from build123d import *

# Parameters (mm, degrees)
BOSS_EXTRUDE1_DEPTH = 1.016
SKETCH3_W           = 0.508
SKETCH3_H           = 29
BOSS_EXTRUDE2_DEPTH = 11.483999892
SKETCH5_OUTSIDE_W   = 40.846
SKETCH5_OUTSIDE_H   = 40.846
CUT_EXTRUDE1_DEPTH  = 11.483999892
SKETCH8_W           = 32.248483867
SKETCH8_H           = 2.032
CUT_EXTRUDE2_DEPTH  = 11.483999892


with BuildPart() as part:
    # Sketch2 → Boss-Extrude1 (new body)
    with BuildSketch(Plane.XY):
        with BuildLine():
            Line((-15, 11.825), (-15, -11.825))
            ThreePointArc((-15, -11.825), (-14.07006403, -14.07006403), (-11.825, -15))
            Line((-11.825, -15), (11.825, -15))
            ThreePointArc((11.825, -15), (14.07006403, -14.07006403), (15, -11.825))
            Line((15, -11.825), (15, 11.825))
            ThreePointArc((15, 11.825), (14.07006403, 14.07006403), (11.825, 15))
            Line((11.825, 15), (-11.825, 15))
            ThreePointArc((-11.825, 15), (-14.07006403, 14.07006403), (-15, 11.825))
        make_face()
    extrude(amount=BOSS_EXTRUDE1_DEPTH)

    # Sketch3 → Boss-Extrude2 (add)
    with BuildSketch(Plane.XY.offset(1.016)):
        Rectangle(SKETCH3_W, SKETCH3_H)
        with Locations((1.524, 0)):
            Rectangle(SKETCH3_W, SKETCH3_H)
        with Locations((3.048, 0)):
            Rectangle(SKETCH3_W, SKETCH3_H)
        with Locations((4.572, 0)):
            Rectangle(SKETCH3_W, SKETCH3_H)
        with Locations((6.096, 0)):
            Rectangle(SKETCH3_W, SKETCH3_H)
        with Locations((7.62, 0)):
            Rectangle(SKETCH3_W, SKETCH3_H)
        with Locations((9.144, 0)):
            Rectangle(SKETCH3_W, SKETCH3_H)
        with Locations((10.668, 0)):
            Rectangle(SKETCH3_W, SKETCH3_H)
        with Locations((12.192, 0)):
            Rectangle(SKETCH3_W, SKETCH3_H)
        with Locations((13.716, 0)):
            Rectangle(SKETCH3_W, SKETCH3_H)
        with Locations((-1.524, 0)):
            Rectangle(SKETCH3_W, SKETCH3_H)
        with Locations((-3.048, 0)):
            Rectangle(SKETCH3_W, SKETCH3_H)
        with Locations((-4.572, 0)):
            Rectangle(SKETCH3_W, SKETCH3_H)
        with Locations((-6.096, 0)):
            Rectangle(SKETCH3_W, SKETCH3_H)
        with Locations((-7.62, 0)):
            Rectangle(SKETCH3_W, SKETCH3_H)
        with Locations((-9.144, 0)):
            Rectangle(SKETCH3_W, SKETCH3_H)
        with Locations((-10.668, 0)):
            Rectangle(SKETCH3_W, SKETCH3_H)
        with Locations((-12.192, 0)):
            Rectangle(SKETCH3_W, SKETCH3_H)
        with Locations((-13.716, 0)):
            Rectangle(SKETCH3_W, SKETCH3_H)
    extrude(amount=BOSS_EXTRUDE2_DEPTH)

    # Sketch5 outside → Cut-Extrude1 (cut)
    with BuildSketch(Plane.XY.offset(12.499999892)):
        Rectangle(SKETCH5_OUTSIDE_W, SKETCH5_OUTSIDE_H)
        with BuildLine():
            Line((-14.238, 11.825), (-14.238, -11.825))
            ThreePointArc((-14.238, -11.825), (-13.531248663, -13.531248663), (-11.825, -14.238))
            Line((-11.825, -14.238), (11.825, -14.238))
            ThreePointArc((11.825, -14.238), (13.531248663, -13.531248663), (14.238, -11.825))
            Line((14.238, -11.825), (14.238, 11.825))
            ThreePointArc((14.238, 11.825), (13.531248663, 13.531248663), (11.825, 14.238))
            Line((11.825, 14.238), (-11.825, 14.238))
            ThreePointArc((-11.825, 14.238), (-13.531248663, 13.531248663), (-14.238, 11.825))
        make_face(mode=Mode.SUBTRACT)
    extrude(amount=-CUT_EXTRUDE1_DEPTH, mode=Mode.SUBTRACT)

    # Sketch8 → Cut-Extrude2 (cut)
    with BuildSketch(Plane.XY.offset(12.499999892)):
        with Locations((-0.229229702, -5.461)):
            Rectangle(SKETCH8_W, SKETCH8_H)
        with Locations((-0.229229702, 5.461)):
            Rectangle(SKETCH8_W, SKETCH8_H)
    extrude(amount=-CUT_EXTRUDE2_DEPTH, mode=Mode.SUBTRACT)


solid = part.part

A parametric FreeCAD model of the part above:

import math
import FreeCAD as App
import Part
import Sketcher

V = App.Vector
Q = App.Units.Quantity


def add_polygon(sketch, points):
    """Adds a closed chain of lines whose ends are joined by coincident constraints."""
    first, n = sketch.GeometryCount, len(points)
    for a, b in zip(points, points[1:] + points[:1]):
        sketch.addGeometry(Part.LineSegment(App.Vector(*a, 0), App.Vector(*b, 0)), False)
    for i in range(n):
        sketch.addConstraint(Sketcher.Constraint("Coincident", first + i, 2, first + (i + 1) % n, 1))

doc = App.newDocument("Part")
body = doc.addObject("PartDesign::Body", "Body")

# Sketch on XY plane
sketch1 = body.newObject("Sketcher::SketchObject", "Sketch")
sketch1.AttachmentSupport = (doc.getObject("XY_Plane"), [""])
sketch1.MapMode = "FlatFace"
sketch1.addGeometry([
    Part.LineSegment(V(-15, 11.8, 0), V(-15, -11.8, 0)),  # 0
    Part.ArcOfCircle(Part.Circle(V(-11.8, -11.8, 0), V(0, 0, 1), 3.2), math.radians(-180), math.radians(-90)),  # 1
    Part.LineSegment(V(-11.8, -15, 0), V(11.8, -15, 0)),  # 2
    Part.ArcOfCircle(Part.Circle(V(11.8, -11.8, 0), V(0, 0, 1), 3.2), math.radians(-90), math.radians(0)),  # 3
    Part.LineSegment(V(15, -11.8, 0), V(15, 11.8, 0)),  # 4
    Part.ArcOfCircle(Part.Circle(V(11.8, 11.8, 0), V(0, 0, 1), 3.2), math.radians(0), math.radians(90)),  # 5
    Part.LineSegment(V(11.8, 15, 0), V(-11.8, 15, 0)),  # 6
    Part.ArcOfCircle(Part.Circle(V(-11.8, 11.8, 0), V(0, 0, 1), 3.2), math.radians(90), math.radians(180)),  # 7
], False)
sketch1.addConstraint([
    Sketcher.Constraint("Tangent", 0, 2, 1, 1),
    Sketcher.Constraint("Tangent", 1, 2, 2, 1),
    Sketcher.Constraint("Tangent", 2, 2, 3, 1),
    Sketcher.Constraint("Tangent", 3, 2, 4, 1),
    Sketcher.Constraint("Tangent", 4, 2, 5, 1),
    Sketcher.Constraint("Tangent", 5, 2, 6, 1),
    Sketcher.Constraint("Tangent", 6, 2, 7, 1),
    Sketcher.Constraint("Tangent", 7, 2, 0, 1),
    Sketcher.Constraint("Vertical", 0),
    Sketcher.Constraint("Horizontal", 2),
    Sketcher.Constraint("Vertical", 4),
    Sketcher.Constraint("Horizontal", 6),
    Sketcher.Constraint("Equal", 1, 3),
    Sketcher.Constraint("Equal", 3, 5),
    Sketcher.Constraint("Equal", 5, 7),
    Sketcher.Constraint("Symmetric", 1, 3, 5, 3, -1, 1),
    Sketcher.Constraint("Equal", 6, 0),
    Sketcher.Constraint("Radius", 1, Q("0.125 in")),
    Sketcher.Constraint("DistanceX", 2, 1, 2, 2, 23.65),
])
pad1 = body.newObject("PartDesign::Pad", "Pad")
pad1.Profile = sketch1
pad1.Length = Q("0.04 in")

# Sketch on XY plane
sketch2 = body.newObject("Sketcher::SketchObject", "Sketch001")
sketch2.AttachmentSupport = (doc.getObject("XY_Plane"), [""])
sketch2.MapMode = "FlatFace"
sketch2.AttachmentOffset = App.Placement(V(0, 0, 0.04 * 25.4), App.Rotation())
add_polygon(sketch2, [(-0.3, 14.5), (-0.3, -14.5), (0.3, -14.5), (0.3, 14.5)])  # lines 0-3
add_polygon(sketch2, [(1.3, 14.5), (1.3, -14.5), (1.8, -14.5), (1.8, 14.5)])  # lines 4-7
add_polygon(sketch2, [(2.8, 14.5), (2.8, -14.5), (3.3, -14.5), (3.3, 14.5)])  # lines 8-11
add_polygon(sketch2, [(4.3, 14.5), (4.3, -14.5), (4.8, -14.5), (4.8, 14.5)])  # lines 12-15
add_polygon(sketch2, [(5.8, 14.5), (5.8, -14.5), (6.3, -14.5), (6.3, 14.5)])  # lines 16-19
add_polygon(sketch2, [(7.4, 14.5), (7.4, -14.5), (7.9, -14.5), (7.9, 14.5)])  # lines 20-23
add_polygon(sketch2, [(8.9, 14.5), (8.9, -14.5), (9.4, -14.5), (9.4, 14.5)])  # lines 24-27
add_polygon(sketch2, [(10.4, 14.5), (10.4, -14.5), (10.9, -14.5), (10.9, 14.5)])  # lines 28-31
add_polygon(sketch2, [(11.9, 14.5), (11.9, -14.5), (12.4, -14.5), (12.4, 14.5)])  # lines 32-35
add_polygon(sketch2, [(13.5, 14.5), (13.5, -14.5), (14, -14.5), (14, 14.5)])  # lines 36-39
add_polygon(sketch2, [(-1.8, 14.5), (-1.8, -14.5), (-1.3, -14.5), (-1.3, 14.5)])  # lines 40-43
add_polygon(sketch2, [(-3.3, 14.5), (-3.3, -14.5), (-2.8, -14.5), (-2.8, 14.5)])  # lines 44-47
add_polygon(sketch2, [(-4.8, 14.5), (-4.8, -14.5), (-4.3, -14.5), (-4.3, 14.5)])  # lines 48-51
add_polygon(sketch2, [(-6.3, 14.5), (-6.3, -14.5), (-5.8, -14.5), (-5.8, 14.5)])  # lines 52-55
add_polygon(sketch2, [(-7.9, 14.5), (-7.9, -14.5), (-7.4, -14.5), (-7.4, 14.5)])  # lines 56-59
add_polygon(sketch2, [(-9.4, 14.5), (-9.4, -14.5), (-8.9, -14.5), (-8.9, 14.5)])  # lines 60-63
add_polygon(sketch2, [(-10.9, 14.5), (-10.9, -14.5), (-10.4, -14.5), (-10.4, 14.5)])  # lines 64-67
add_polygon(sketch2, [(-12.4, 14.5), (-12.4, -14.5), (-11.9, -14.5), (-11.9, 14.5)])  # lines 68-71
add_polygon(sketch2, [(-14, 14.5), (-14, -14.5), (-13.5, -14.5), (-13.5, 14.5)])  # lines 72-75
sketch2.addConstraint([
    Sketcher.Constraint("Vertical", 0),
    Sketcher.Constraint("Horizontal", 1),
    Sketcher.Constraint("Vertical", 2),
    Sketcher.Constraint("Horizontal", 3),
    Sketcher.Constraint("Vertical", 4),
    Sketcher.Constraint("Horizontal", 5),
    Sketcher.Constraint("Vertical", 6),
    Sketcher.Constraint("Horizontal", 7),
    Sketcher.Constraint("Vertical", 8),
    Sketcher.Constraint("Horizontal", 9),
    Sketcher.Constraint("Vertical", 10),
    Sketcher.Constraint("Horizontal", 11),
    Sketcher.Constraint("Vertical", 12),
    Sketcher.Constraint("Horizontal", 13),
    Sketcher.Constraint("Vertical", 14),
    Sketcher.Constraint("Horizontal", 15),
    Sketcher.Constraint("Vertical", 16),
    Sketcher.Constraint("Horizontal", 17),
    Sketcher.Constraint("Vertical", 18),
    Sketcher.Constraint("Horizontal", 19),
    Sketcher.Constraint("Vertical", 20),
    Sketcher.Constraint("Horizontal", 21),
    Sketcher.Constraint("Vertical", 22),
    Sketcher.Constraint("Horizontal", 23),
    Sketcher.Constraint("Vertical", 24),
    Sketcher.Constraint("Horizontal", 25),
    Sketcher.Constraint("Vertical", 26),
    Sketcher.Constraint("Horizontal", 27),
    Sketcher.Constraint("Vertical", 28),
    Sketcher.Constraint("Horizontal", 29),
    Sketcher.Constraint("Vertical", 30),
    Sketcher.Constraint("Horizontal", 31),
    Sketcher.Constraint("Vertical", 32),
    Sketcher.Constraint("Horizontal", 33),
    Sketcher.Constraint("Vertical", 34),
    Sketcher.Constraint("Horizontal", 35),
    Sketcher.Constraint("Vertical", 36),
    Sketcher.Constraint("Horizontal", 37),
    Sketcher.Constraint("Vertical", 38),
    Sketcher.Constraint("Horizontal", 39),
    Sketcher.Constraint("Vertical", 40),
    Sketcher.Constraint("Horizontal", 41),
    Sketcher.Constraint("Vertical", 42),
    Sketcher.Constraint("Horizontal", 43),
    Sketcher.Constraint("Vertical", 44),
    Sketcher.Constraint("Horizontal", 45),
    Sketcher.Constraint("Vertical", 46),
    Sketcher.Constraint("Horizontal", 47),
    Sketcher.Constraint("Vertical", 48),
    Sketcher.Constraint("Horizontal", 49),
    Sketcher.Constraint("Vertical", 50),
    Sketcher.Constraint("Horizontal", 51),
    Sketcher.Constraint("Vertical", 52),
    Sketcher.Constraint("Horizontal", 53),
    Sketcher.Constraint("Vertical", 54),
    Sketcher.Constraint("Horizontal", 55),
    Sketcher.Constraint("Vertical", 56),
    Sketcher.Constraint("Horizontal", 57),
    Sketcher.Constraint("Vertical", 58),
    Sketcher.Constraint("Horizontal", 59),
    Sketcher.Constraint("Vertical", 60),
    Sketcher.Constraint("Horizontal", 61),
    Sketcher.Constraint("Vertical", 62),
    Sketcher.Constraint("Horizontal", 63),
    Sketcher.Constraint("Vertical", 64),
    Sketcher.Constraint("Horizontal", 65),
    Sketcher.Constraint("Vertical", 66),
    Sketcher.Constraint("Horizontal", 67),
    Sketcher.Constraint("Vertical", 68),
    Sketcher.Constraint("Horizontal", 69),
    Sketcher.Constraint("Vertical", 70),
    Sketcher.Constraint("Horizontal", 71),
    Sketcher.Constraint("Vertical", 72),
    Sketcher.Constraint("Horizontal", 73),
    Sketcher.Constraint("Vertical", 74),
    Sketcher.Constraint("Horizontal", 75),
    Sketcher.Constraint("Symmetric", 0, 2, 2, 2, -1, 1),
    Sketcher.Constraint("Symmetric", 6, 2, 40, 2, -1, 1),
    Sketcher.Constraint("Symmetric", 4, 2, 42, 2, -1, 1),
    Sketcher.Constraint("Symmetric", 10, 2, 44, 2, -1, 1),
    Sketcher.Constraint("Symmetric", 8, 2, 46, 2, -1, 1),
    Sketcher.Constraint("Symmetric", 14, 2, 48, 2, -1, 1),
    Sketcher.Constraint("Symmetric", 12, 2, 50, 2, -1, 1),
    Sketcher.Constraint("Symmetric", 18, 2, 52, 2, -1, 1),
    Sketcher.Constraint("Symmetric", 16, 2, 54, 2, -1, 1),
    Sketcher.Constraint("Symmetric", 22, 2, 56, 2, -1, 1),
    Sketcher.Constraint("Symmetric", 20, 2, 58, 2, -1, 1),
    Sketcher.Constraint("Symmetric", 26, 2, 60, 2, -1, 1),
    Sketcher.Constraint("Symmetric", 24, 2, 62, 2, -1, 1),
    Sketcher.Constraint("Symmetric", 30, 2, 64, 2, -1, 1),
    Sketcher.Constraint("Symmetric", 28, 2, 66, 2, -1, 1),
    Sketcher.Constraint("Symmetric", 34, 2, 68, 2, -1, 1),
    Sketcher.Constraint("Symmetric", 32, 2, 70, 2, -1, 1),
    Sketcher.Constraint("Symmetric", 38, 2, 72, 2, -1, 1),
    Sketcher.Constraint("Symmetric", 36, 2, 74, 2, -1, 1),
    Sketcher.Constraint("Horizontal", 1, 2, 4, 2),
    Sketcher.Constraint("Horizontal", 3, 2, 6, 2),
    Sketcher.Constraint("Horizontal", 5, 2, 8, 2),
    Sketcher.Constraint("Horizontal", 7, 2, 10, 2),
    Sketcher.Constraint("Horizontal", 9, 2, 12, 2),
    Sketcher.Constraint("Horizontal", 11, 2, 14, 2),
    Sketcher.Constraint("Horizontal", 13, 2, 16, 2),
    Sketcher.Constraint("Horizontal", 15, 2, 18, 2),
    Sketcher.Constraint("Horizontal", 17, 2, 20, 2),
    Sketcher.Constraint("Horizontal", 19, 2, 22, 2),
    Sketcher.Constraint("Horizontal", 21, 2, 24, 2),
    Sketcher.Constraint("Horizontal", 23, 2, 26, 2),
    Sketcher.Constraint("Horizontal", 25, 2, 28, 2),
    Sketcher.Constraint("Horizontal", 27, 2, 30, 2),
    Sketcher.Constraint("Horizontal", 29, 2, 32, 2),
    Sketcher.Constraint("Horizontal", 31, 2, 34, 2),
    Sketcher.Constraint("Horizontal", 33, 2, 36, 2),
    Sketcher.Constraint("Horizontal", 35, 2, 38, 2),
    Sketcher.Constraint("Equal", 3, 5),
    Sketcher.Constraint("Equal", 7, 9),
    Sketcher.Constraint("Equal", 11, 13),
    Sketcher.Constraint("Equal", 15, 17),
    Sketcher.Constraint("Equal", 19, 21),
    Sketcher.Constraint("Equal", 23, 25),
    Sketcher.Constraint("Equal", 27, 29),
    Sketcher.Constraint("Equal", 31, 33),
    Sketcher.Constraint("Equal", 35, 37),
    Sketcher.Constraint("DistanceX", 1, 1, 1, 2, Q("0.02 in")),
    Sketcher.Constraint("DistanceX", -1, 1, 4, 2, Q("0.05 in")),
    Sketcher.Constraint("DistanceX", -1, 1, 8, 2, Q("0.11 in")),
    Sketcher.Constraint("DistanceX", -1, 1, 12, 2, Q("0.17 in")),
    Sketcher.Constraint("DistanceX", -1, 1, 16, 2, Q("0.23 in")),
    Sketcher.Constraint("DistanceX", -1, 1, 20, 2, Q("0.29 in")),
    Sketcher.Constraint("DistanceX", -1, 1, 24, 2, Q("0.35 in")),
    Sketcher.Constraint("DistanceX", -1, 1, 28, 2, Q("0.41 in")),
    Sketcher.Constraint("DistanceX", -1, 1, 32, 2, Q("0.47 in")),
    Sketcher.Constraint("DistanceX", -1, 1, 36, 2, Q("0.53 in")),
    Sketcher.Constraint("DistanceY", 0, 2, 0, 1, 29.0),
])
pad2 = body.newObject("PartDesign::Pad", "Pad001")
pad2.Profile = sketch2
pad2.Length = 11.484

# Sketch on XY plane
sketch3 = body.newObject("Sketcher::SketchObject", "Sketch002")
sketch3.AttachmentSupport = (doc.getObject("XY_Plane"), [""])
sketch3.MapMode = "FlatFace"
sketch3.AttachmentOffset = App.Placement(V(0, 0, 12.5), App.Rotation())
add_polygon(sketch3, [(-20.4, 20.4), (-20.4, -20.4), (20.4, -20.4), (20.4, 20.4)])  # lines 0-3
sketch3.addGeometry(Part.LineSegment(V(-14.2, -11.8, 0), V(-14.2, 11.8, 0)), False)  # 4
sketch3.addGeometry(Part.ArcOfCircle(Part.Circle(V(-11.8, 11.8, 0), V(0, 0, 1), 2.4), math.radians(90), math.radians(180)), False)  # 5
sketch3.addGeometry(Part.LineSegment(V(-11.8, 14.2, 0), V(11.8, 14.2, 0)), False)  # 6
sketch3.addGeometry(Part.ArcOfCircle(Part.Circle(V(11.8, 11.8, 0), V(0, 0, 1), 2.4), math.radians(0), math.radians(90)), False)  # 7
sketch3.addGeometry(Part.LineSegment(V(14.2, 11.8, 0), V(14.2, -11.8, 0)), False)  # 8
sketch3.addGeometry(Part.ArcOfCircle(Part.Circle(V(11.8, -11.8, 0), V(0, 0, 1), 2.4), math.radians(-90), math.radians(0)), False)  # 9
sketch3.addGeometry(Part.LineSegment(V(11.8, -14.2, 0), V(-11.8, -14.2, 0)), False)  # 10
sketch3.addGeometry(Part.ArcOfCircle(Part.Circle(V(-11.8, -11.8, 0), V(0, 0, 1), 2.4), math.radians(180), math.radians(270)), False)  # 11
sketch3.addConstraint([
    Sketcher.Constraint("Tangent", 4, 2, 5, 2),
    Sketcher.Constraint("Tangent", 5, 1, 6, 1),
    Sketcher.Constraint("Tangent", 6, 2, 7, 2),
    Sketcher.Constraint("Tangent", 7, 1, 8, 1),
    Sketcher.Constraint("Tangent", 8, 2, 9, 2),
    Sketcher.Constraint("Tangent", 9, 1, 10, 1),
    Sketcher.Constraint("Tangent", 10, 2, 11, 2),
    Sketcher.Constraint("Tangent", 11, 1, 4, 1),
    Sketcher.Constraint("Vertical", 0),
    Sketcher.Constraint("Horizontal", 1),
    Sketcher.Constraint("Vertical", 2),
    Sketcher.Constraint("Horizontal", 3),
    Sketcher.Constraint("Vertical", 4),
    Sketcher.Constraint("Horizontal", 6),
    Sketcher.Constraint("Vertical", 8),
    Sketcher.Constraint("Horizontal", 10),
    Sketcher.Constraint("Equal", 5, 7),
    Sketcher.Constraint("Equal", 7, 9),
    Sketcher.Constraint("Equal", 9, 11),
    Sketcher.Constraint("Symmetric", 5, 3, 9, 3, -1, 1),
    Sketcher.Constraint("Symmetric", 0, 2, 2, 2, -1, 1),
    Sketcher.Constraint("Equal", 3, 0),
    Sketcher.Constraint("Equal", 10, 4),
    Sketcher.Constraint("Radius", 5, Q("0.095 in")),
    Sketcher.Constraint("DistanceX", 1, 1, 1, 2, 40.846),
    Sketcher.Constraint("DistanceX", 6, 1, 6, 2, 23.65),
])
pocket1 = body.newObject("PartDesign::Pocket", "Pocket")
pocket1.Profile = sketch3
pocket1.Length = 11.484

# Sketch on XY plane
sketch4 = body.newObject("Sketcher::SketchObject", "Sketch003")
sketch4.AttachmentSupport = (doc.getObject("XY_Plane"), [""])
sketch4.MapMode = "FlatFace"
sketch4.AttachmentOffset = App.Placement(V(0, 0, 12.5), App.Rotation())
add_polygon(sketch4, [(-16.4, -4.4), (-16.4, -6.5), (15.9, -6.5), (15.9, -4.4)])  # lines 0-3
add_polygon(sketch4, [(-16.4, 6.5), (-16.4, 4.4), (15.9, 4.4), (15.9, 6.5)])  # lines 4-7
sketch4.addConstraint([
    Sketcher.Constraint("Vertical", 0),
    Sketcher.Constraint("Horizontal", 1),
    Sketcher.Constraint("Vertical", 2),
    Sketcher.Constraint("Horizontal", 3),
    Sketcher.Constraint("Vertical", 4),
    Sketcher.Constraint("Horizontal", 5),
    Sketcher.Constraint("Vertical", 6),
    Sketcher.Constraint("Horizontal", 7),
    Sketcher.Constraint("Symmetric", 3, 2, 4, 2, -1),
    Sketcher.Constraint("Symmetric", 1, 2, 6, 2, -1),
    Sketcher.Constraint("DistanceY", 0, 2, 0, 1, Q("0.08 in")),
    Sketcher.Constraint("DistanceY", 3, 2, 4, 2, Q("0.35 in")),
    Sketcher.Constraint("DistanceX", 1, 1, 1, 2, 32.248484),
    Sketcher.Constraint("DistanceX", 0, 2, -1, 1, 16.353472),
])
pocket2 = body.newObject("PartDesign::Pocket", "Pocket001")
pocket2.Profile = sketch4
pocket2.Length = 11.484

doc.recompute()
